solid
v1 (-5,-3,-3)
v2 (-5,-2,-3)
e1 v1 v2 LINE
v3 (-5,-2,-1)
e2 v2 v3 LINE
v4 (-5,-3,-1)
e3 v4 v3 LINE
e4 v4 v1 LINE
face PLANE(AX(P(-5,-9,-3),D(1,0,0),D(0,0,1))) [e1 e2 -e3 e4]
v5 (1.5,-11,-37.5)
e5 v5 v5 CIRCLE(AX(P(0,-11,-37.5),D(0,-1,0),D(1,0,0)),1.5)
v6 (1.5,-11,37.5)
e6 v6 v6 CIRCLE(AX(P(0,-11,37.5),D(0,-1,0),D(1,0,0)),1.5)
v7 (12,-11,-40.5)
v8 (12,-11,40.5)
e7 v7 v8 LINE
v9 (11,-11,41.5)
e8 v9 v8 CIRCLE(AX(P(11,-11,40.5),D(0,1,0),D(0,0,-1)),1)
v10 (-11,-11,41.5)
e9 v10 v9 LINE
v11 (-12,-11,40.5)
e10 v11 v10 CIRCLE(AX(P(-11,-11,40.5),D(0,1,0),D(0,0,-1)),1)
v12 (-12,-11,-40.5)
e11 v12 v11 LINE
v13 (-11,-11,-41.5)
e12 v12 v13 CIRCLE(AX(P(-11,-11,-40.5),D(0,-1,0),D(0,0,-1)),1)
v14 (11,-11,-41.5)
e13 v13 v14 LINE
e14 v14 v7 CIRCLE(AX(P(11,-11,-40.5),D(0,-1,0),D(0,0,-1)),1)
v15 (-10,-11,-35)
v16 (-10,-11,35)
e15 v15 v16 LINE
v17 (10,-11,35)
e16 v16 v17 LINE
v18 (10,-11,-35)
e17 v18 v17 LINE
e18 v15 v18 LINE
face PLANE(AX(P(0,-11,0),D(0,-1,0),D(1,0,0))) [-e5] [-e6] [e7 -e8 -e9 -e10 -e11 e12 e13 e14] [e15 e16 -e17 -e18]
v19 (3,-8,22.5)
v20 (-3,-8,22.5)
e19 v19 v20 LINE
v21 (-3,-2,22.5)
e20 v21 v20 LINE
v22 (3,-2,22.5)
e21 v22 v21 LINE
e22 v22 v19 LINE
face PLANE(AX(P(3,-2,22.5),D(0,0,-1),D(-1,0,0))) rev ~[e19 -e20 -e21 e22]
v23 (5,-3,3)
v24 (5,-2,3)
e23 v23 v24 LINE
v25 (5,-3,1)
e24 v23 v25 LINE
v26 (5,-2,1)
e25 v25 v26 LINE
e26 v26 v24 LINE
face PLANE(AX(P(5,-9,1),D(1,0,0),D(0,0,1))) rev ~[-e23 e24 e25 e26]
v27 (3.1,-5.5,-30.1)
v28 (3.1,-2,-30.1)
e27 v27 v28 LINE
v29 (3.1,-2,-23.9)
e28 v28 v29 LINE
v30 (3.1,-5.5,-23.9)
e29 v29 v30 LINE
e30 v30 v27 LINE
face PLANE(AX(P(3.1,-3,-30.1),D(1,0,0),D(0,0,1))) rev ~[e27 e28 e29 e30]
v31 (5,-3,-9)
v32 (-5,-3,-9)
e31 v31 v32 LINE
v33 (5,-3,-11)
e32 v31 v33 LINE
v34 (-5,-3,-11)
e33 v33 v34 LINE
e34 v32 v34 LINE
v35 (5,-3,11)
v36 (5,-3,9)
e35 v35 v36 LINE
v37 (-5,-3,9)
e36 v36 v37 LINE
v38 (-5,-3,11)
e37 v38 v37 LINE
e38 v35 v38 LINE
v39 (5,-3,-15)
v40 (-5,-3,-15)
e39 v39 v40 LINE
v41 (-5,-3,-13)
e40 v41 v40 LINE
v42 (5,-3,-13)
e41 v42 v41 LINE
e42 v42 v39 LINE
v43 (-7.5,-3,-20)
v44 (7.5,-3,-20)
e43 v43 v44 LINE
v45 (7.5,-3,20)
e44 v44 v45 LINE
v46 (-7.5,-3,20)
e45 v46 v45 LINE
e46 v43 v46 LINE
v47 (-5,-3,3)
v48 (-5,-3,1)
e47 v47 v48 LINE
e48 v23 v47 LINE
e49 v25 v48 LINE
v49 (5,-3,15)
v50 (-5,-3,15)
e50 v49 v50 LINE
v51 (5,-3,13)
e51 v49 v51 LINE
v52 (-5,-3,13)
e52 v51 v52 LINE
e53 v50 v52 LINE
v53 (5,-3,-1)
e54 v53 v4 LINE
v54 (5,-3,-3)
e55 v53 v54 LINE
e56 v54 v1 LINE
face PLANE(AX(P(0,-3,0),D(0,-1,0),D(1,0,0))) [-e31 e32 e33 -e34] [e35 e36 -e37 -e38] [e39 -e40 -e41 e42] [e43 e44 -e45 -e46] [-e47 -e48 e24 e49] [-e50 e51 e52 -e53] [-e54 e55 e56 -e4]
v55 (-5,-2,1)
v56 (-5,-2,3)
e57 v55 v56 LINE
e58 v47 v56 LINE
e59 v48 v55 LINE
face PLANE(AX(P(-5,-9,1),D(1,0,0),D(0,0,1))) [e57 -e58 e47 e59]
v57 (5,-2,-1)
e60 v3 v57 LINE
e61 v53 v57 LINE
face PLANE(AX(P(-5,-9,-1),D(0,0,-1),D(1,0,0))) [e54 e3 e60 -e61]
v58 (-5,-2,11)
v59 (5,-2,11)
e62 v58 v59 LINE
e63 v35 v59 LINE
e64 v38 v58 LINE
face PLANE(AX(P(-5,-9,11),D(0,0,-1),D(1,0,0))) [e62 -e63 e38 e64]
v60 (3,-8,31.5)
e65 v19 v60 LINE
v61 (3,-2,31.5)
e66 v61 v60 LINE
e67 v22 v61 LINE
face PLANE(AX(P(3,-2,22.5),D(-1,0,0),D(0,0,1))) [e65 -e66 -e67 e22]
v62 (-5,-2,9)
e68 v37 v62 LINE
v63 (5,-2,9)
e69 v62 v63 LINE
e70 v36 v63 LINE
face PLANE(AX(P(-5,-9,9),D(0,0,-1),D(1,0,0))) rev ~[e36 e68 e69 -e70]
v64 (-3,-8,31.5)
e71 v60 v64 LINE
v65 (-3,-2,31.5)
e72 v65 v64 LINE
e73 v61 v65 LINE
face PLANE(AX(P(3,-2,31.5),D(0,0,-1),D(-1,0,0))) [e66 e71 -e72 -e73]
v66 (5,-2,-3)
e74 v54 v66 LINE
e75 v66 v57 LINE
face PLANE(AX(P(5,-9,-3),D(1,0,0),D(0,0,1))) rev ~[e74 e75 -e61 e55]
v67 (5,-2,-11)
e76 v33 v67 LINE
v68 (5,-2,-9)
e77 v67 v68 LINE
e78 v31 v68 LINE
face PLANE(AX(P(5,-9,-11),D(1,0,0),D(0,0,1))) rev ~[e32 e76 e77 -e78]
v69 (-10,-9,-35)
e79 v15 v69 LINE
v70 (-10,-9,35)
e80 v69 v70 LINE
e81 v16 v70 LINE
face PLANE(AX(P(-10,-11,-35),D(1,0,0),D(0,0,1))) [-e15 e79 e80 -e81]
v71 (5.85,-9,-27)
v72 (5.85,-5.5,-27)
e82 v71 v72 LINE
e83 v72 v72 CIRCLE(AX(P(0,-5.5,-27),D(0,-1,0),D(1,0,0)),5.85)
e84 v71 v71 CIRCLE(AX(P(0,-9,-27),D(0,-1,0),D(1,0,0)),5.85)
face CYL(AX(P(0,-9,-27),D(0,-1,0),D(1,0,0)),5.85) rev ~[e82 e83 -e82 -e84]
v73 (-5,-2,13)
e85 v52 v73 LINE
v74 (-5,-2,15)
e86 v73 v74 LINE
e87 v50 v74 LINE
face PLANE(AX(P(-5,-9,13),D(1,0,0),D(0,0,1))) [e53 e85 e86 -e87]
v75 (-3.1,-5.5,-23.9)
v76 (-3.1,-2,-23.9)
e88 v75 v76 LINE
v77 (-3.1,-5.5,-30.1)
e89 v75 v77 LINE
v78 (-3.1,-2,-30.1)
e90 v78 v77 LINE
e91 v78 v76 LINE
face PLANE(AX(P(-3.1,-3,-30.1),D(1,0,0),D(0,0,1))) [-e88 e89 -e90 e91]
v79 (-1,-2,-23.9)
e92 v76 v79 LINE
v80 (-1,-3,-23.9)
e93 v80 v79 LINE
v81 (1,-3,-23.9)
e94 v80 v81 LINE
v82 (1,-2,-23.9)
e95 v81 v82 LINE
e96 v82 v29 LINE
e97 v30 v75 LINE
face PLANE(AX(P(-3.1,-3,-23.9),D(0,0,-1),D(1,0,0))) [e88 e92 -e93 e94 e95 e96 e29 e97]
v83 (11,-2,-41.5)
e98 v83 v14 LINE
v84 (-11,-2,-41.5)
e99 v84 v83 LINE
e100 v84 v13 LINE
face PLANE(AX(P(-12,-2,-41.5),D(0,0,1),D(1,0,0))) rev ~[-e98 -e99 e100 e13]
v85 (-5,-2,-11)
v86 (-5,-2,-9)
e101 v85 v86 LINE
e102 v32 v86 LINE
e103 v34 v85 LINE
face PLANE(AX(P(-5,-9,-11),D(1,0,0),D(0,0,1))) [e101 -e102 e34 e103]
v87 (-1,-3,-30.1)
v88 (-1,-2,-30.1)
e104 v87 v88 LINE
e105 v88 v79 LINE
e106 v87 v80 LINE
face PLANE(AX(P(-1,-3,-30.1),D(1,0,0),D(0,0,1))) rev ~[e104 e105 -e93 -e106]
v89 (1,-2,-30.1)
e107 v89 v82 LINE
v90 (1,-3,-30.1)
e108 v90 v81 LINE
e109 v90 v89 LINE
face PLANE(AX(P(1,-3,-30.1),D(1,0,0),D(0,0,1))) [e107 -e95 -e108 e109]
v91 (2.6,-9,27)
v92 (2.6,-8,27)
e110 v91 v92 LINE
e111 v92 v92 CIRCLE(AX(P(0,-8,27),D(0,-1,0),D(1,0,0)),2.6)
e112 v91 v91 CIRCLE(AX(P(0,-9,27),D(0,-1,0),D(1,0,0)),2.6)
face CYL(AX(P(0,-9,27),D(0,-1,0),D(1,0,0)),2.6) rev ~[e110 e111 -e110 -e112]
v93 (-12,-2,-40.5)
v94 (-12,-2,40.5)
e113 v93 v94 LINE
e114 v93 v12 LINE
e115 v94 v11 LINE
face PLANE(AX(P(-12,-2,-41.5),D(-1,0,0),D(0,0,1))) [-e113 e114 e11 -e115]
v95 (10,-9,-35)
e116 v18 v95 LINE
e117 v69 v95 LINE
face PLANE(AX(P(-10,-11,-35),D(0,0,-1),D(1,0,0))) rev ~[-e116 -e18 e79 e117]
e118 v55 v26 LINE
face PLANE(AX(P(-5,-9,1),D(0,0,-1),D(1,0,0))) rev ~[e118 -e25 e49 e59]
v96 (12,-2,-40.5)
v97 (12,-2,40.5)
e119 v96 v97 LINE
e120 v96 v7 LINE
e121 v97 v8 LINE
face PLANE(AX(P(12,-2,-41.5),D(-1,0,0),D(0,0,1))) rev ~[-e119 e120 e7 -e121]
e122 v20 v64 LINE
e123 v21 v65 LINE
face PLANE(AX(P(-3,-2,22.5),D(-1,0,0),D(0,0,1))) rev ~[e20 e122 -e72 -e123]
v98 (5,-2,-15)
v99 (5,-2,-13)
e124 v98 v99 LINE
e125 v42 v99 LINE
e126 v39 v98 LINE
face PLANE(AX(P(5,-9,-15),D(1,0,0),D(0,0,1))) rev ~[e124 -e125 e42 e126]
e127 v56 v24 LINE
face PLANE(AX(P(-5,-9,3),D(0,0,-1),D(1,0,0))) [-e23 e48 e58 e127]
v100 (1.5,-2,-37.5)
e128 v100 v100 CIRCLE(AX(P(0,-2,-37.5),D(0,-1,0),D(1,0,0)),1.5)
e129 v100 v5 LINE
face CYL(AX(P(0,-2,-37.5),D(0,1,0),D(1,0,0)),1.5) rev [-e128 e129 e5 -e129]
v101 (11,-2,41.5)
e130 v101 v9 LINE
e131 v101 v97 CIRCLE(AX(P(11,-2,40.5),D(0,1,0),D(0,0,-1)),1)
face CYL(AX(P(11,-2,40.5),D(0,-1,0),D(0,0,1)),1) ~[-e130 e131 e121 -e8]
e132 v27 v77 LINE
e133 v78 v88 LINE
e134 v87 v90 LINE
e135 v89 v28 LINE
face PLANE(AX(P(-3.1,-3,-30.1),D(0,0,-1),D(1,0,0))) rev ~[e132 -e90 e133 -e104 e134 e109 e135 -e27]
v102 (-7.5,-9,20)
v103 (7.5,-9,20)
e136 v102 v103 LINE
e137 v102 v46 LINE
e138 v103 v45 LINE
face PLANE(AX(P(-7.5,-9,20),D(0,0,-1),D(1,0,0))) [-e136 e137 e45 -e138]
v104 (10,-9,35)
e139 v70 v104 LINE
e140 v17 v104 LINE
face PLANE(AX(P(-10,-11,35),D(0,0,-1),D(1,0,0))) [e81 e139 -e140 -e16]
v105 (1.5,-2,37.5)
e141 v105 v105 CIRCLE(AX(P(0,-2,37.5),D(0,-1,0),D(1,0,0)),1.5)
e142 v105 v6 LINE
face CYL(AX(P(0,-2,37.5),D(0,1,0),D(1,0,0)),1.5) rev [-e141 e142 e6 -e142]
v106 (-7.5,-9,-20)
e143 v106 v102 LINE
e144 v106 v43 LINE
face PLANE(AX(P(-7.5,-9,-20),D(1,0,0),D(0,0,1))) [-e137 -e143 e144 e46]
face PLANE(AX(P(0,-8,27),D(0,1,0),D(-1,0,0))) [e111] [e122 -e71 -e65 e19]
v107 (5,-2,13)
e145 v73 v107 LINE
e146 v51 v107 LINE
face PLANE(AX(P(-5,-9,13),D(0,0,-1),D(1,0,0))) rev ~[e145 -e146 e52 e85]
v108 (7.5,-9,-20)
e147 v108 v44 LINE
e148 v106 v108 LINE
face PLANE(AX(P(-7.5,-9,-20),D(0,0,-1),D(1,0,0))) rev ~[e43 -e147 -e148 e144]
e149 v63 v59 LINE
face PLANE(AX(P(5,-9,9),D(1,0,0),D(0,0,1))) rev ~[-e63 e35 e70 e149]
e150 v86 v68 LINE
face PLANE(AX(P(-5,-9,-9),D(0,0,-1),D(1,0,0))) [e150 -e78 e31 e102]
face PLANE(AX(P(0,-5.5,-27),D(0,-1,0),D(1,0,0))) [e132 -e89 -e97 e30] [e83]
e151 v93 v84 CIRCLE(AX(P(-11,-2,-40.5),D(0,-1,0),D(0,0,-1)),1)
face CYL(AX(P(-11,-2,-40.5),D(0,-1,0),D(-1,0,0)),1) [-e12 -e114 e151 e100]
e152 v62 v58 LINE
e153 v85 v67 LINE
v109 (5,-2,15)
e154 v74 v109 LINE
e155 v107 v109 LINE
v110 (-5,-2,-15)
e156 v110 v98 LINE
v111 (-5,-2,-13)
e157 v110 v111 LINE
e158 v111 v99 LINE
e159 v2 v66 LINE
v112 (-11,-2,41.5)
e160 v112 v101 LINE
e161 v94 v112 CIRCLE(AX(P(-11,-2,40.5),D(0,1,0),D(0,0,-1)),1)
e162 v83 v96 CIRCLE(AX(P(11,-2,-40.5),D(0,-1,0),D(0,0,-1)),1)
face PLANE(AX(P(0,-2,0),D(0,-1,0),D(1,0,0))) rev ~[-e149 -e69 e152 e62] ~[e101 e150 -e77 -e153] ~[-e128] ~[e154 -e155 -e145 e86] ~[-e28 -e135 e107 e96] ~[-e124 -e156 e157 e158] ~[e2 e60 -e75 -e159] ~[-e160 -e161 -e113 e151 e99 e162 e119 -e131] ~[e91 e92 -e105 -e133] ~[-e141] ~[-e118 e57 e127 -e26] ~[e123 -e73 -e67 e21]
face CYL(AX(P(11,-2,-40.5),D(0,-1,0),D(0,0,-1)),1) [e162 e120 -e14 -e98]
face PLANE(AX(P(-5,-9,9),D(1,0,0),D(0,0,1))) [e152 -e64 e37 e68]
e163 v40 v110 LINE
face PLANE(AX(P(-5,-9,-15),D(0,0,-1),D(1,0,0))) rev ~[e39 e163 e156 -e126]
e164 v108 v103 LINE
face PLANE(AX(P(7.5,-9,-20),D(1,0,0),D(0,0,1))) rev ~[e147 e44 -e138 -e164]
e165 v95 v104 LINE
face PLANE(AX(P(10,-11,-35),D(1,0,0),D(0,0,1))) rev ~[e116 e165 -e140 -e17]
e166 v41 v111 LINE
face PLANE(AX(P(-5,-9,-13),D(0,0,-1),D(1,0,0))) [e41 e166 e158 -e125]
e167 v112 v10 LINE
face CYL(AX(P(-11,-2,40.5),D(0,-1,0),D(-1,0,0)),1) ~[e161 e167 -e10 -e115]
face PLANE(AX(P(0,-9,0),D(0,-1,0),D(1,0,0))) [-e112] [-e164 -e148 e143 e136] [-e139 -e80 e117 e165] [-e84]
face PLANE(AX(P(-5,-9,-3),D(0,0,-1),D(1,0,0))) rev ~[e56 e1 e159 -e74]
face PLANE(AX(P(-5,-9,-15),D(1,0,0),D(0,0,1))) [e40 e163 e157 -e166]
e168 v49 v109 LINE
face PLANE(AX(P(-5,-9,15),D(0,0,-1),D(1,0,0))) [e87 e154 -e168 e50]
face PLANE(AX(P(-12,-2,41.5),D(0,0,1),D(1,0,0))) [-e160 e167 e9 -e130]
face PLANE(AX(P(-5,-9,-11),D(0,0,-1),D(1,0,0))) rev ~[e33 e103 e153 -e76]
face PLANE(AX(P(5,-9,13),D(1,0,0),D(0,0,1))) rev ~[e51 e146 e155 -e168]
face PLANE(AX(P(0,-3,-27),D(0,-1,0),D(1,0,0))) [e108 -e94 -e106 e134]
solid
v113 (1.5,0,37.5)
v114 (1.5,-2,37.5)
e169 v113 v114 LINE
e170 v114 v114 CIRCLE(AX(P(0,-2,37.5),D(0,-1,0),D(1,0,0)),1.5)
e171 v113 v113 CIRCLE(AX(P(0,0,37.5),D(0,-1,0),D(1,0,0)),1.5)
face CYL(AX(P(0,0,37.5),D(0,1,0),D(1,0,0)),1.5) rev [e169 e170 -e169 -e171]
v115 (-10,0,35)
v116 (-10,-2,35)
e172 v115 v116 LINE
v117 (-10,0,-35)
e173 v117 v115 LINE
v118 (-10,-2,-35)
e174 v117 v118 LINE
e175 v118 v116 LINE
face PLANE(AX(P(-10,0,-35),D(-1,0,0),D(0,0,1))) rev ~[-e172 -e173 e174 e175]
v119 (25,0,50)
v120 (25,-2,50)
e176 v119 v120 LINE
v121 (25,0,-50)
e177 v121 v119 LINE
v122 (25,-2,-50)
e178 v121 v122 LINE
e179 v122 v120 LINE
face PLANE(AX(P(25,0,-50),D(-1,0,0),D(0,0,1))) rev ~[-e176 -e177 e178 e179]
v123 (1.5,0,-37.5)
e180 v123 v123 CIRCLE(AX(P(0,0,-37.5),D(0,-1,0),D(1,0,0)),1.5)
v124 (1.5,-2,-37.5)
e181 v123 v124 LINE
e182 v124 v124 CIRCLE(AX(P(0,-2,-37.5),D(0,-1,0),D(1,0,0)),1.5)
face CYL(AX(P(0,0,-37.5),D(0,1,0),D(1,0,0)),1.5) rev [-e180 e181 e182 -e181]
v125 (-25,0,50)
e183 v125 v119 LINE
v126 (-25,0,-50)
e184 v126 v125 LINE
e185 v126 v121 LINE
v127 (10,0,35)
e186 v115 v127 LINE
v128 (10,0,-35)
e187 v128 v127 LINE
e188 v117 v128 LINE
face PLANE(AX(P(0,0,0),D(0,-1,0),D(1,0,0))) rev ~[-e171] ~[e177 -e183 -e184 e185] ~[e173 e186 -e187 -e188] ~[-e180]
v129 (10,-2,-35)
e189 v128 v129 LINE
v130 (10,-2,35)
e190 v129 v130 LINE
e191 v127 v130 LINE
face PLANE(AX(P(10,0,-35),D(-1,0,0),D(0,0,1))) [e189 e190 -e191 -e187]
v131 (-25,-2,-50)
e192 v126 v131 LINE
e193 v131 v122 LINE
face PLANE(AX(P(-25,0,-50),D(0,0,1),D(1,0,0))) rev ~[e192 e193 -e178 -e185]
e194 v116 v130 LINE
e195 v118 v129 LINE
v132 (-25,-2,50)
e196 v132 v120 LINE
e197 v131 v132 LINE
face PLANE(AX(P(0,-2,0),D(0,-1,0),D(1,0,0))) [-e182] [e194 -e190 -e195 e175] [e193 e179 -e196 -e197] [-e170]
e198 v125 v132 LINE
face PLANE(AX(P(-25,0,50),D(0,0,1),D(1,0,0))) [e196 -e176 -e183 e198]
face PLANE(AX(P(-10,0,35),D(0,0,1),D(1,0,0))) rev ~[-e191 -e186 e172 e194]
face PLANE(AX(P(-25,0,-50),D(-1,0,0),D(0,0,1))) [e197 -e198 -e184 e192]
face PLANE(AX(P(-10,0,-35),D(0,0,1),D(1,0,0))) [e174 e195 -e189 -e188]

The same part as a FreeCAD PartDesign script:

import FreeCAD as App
import Part
import Sketcher


def edges_at(feature, points):
    """Names of the edges that pass closest to the given points."""
    edges = feature.Shape.Edges
    near = lambda p: min(range(len(edges)), key=lambda i: edges[i].distToShape(Part.Vertex(*p))[0])
    return sorted({f"Edge{near(p) + 1}" for p in points})

doc = App.newDocument("Part")
body = doc.addObject("PartDesign::Body", "Body")

sketch1 = body.newObject("Sketcher::SketchObject", "Sketch")
sketch1.AttachmentSupport = (doc.getObject("XZ_Plane"), [""])
sketch1.MapMode = "FlatFace"
sketch1.addGeometry(Part.LineSegment(App.Vector(-25, 50, 0), App.Vector(-25, -50, 0)), False)
sketch1.addGeometry(Part.LineSegment(App.Vector(-25, -50, 0), App.Vector(25, -50, 0)), False)
sketch1.addGeometry(Part.LineSegment(App.Vector(25, -50, 0), App.Vector(25, 50, 0)), False)
sketch1.addGeometry(Part.LineSegment(App.Vector(25, 50, 0), App.Vector(-25, 50, 0)), False)
sketch1.addGeometry(Part.Circle(App.Vector(0, -37.5, 0), App.Vector(0, 0, 1), 1.5), False)
sketch1.addGeometry(Part.LineSegment(App.Vector(10, -35, 0), App.Vector(-10, -35, 0)), False)
sketch1.addGeometry(Part.LineSegment(App.Vector(-10, -35, 0), App.Vector(-10, 35, 0)), False)
sketch1.addGeometry(Part.LineSegment(App.Vector(-10, 35, 0), App.Vector(10, 35, 0)), False)
sketch1.addGeometry(Part.LineSegment(App.Vector(10, 35, 0), App.Vector(10, -35, 0)), False)
sketch1.addGeometry(Part.Circle(App.Vector(0, 37.5, 0), App.Vector(0, 0, 1), 1.5), False)
sketch1.addConstraint(Sketcher.Constraint("Coincident", 0, 2, 1, 1))
sketch1.addConstraint(Sketcher.Constraint("Coincident", 1, 2, 2, 1))
sketch1.addConstraint(Sketcher.Constraint("Coincident", 2, 2, 3, 1))
sketch1.addConstraint(Sketcher.Constraint("Coincident", 3, 2, 0, 1))
sketch1.addConstraint(Sketcher.Constraint("Coincident", 5, 2, 6, 1))
sketch1.addConstraint(Sketcher.Constraint("Coincident", 6, 2, 7, 1))
sketch1.addConstraint(Sketcher.Constraint("Coincident", 7, 2, 8, 1))
sketch1.addConstraint(Sketcher.Constraint("Coincident", 8, 2, 5, 1))
sketch1.addConstraint(Sketcher.Constraint("Vertical", 0))
sketch1.addConstraint(Sketcher.Constraint("Horizontal", 1))
sketch1.addConstraint(Sketcher.Constraint("Vertical", 2))
sketch1.addConstraint(Sketcher.Constraint("Horizontal", 3))
sketch1.addConstraint(Sketcher.Constraint("Horizontal", 5))
sketch1.addConstraint(Sketcher.Constraint("Vertical", 6))
sketch1.addConstraint(Sketcher.Constraint("Horizontal", 7))
sketch1.addConstraint(Sketcher.Constraint("Vertical", 8))
sketch1.addConstraint(Sketcher.Constraint("Equal", 4, 9))
sketch1.addConstraint(Sketcher.Constraint("Symmetric", 4, 3, 9, 3, -1, 1))
sketch1.addConstraint(Sketcher.Constraint("Symmetric", 0, 2, 2, 2, -1, 1))
sketch1.addConstraint(Sketcher.Constraint("Symmetric", 5, 2, 7, 2, -1, 1))
sketch1.addConstraint(Sketcher.Constraint("PointOnObject", 4, 3, -2))
sketch1.addConstraint(Sketcher.Constraint("Diameter", 4, 3.0))
sketch1.addConstraint(Sketcher.Constraint("DistanceX", 1, 1, 1, 2, 50.0))
sketch1.addConstraint(Sketcher.Constraint("DistanceX", 5, 2, 5, 1, 20.0))
sketch1.addConstraint(Sketcher.Constraint("DistanceY", 0, 2, 0, 1, 100.0))
sketch1.addConstraint(Sketcher.Constraint("DistanceY", 6, 1, 6, 2, 70.0))
sketch1.addConstraint(Sketcher.Constraint("DistanceY", 4, 3, 9, 3, 75.0))
pad1 = body.newObject("PartDesign::Pad", "Pad")
pad1.Profile = sketch1
pad1.Length = 2
body2 = doc.addObject("PartDesign::Body", "Body001")

sketch2 = body2.newObject("Sketcher::SketchObject", "Sketch001")
sketch2.AttachmentSupport = (doc.getObject("XZ_Plane001"), [""])
sketch2.MapMode = "FlatFace"
sketch2.AttachmentOffset = App.Placement(App.Vector(0, 0, 2), App.Rotation())
sketch2.addGeometry(Part.LineSegment(App.Vector(-12, 41.5, 0), App.Vector(-12, -41.5, 0)), False)
sketch2.addGeometry(Part.LineSegment(App.Vector(-12, -41.5, 0), App.Vector(12, -41.5, 0)), False)
sketch2.addGeometry(Part.LineSegment(App.Vector(12, -41.5, 0), App.Vector(12, 41.5, 0)), False)
sketch2.addGeometry(Part.LineSegment(App.Vector(12, 41.5, 0), App.Vector(-12, 41.5, 0)), False)
sketch2.addGeometry(Part.Circle(App.Vector(0, -37.5, 0), App.Vector(0, 0, 1), 1.5), False)
sketch2.addGeometry(Part.Circle(App.Vector(0, 37.5, 0), App.Vector(0, 0, 1), 1.5), False)
sketch2.addConstraint(Sketcher.Constraint("Coincident", 0, 2, 1, 1))
sketch2.addConstraint(Sketcher.Constraint("Coincident", 1, 2, 2, 1))
sketch2.addConstraint(Sketcher.Constraint("Coincident", 2, 2, 3, 1))
sketch2.addConstraint(Sketcher.Constraint("Coincident", 3, 2, 0, 1))
sketch2.addConstraint(Sketcher.Constraint("Vertical", 0))
sketch2.addConstraint(Sketcher.Constraint("Horizontal", 1))
sketch2.addConstraint(Sketcher.Constraint("Vertical", 2))
sketch2.addConstraint(Sketcher.Constraint("Horizontal", 3))
sketch2.addConstraint(Sketcher.Constraint("Equal", 4, 5))
sketch2.addConstraint(Sketcher.Constraint("Symmetric", 4, 3, 5, 3, -1, 1))
sketch2.addConstraint(Sketcher.Constraint("Symmetric", 0, 2, 2, 2, -1, 1))
sketch2.addConstraint(Sketcher.Constraint("PointOnObject", 4, 3, -2))
sketch2.addConstraint(Sketcher.Constraint("Diameter", 4, 3.0))
sketch2.addConstraint(Sketcher.Constraint("DistanceX", 1, 1, 1, 2, 24.0))
sketch2.addConstraint(Sketcher.Constraint("DistanceY", 0, 2, 0, 1, 83.0))
sketch2.addConstraint(Sketcher.Constraint("DistanceY", 4, 3, 5, 3, 75.0))
pad2 = body2.newObject("PartDesign::Pad", "Pad001")
pad2.Profile = sketch2
pad2.Length = 9

sketch3 = body2.newObject("Sketcher::SketchObject", "Sketch002")
sketch3.AttachmentSupport = (doc.getObject("XZ_Plane001"), [""])
sketch3.MapMode = "FlatFace"
sketch3.AttachmentOffset = App.Placement(App.Vector(0, 0, 11), App.Rotation())
sketch3.addGeometry(Part.LineSegment(App.Vector(-10, 35, 0), App.Vector(-10, -35, 0)), False)
sketch3.addGeometry(Part.LineSegment(App.Vector(-10, -35, 0), App.Vector(10, -35, 0)), False)
sketch3.addGeometry(Part.LineSegment(App.Vector(10, -35, 0), App.Vector(10, 35, 0)), False)
sketch3.addGeometry(Part.LineSegment(App.Vector(10, 35, 0), App.Vector(-10, 35, 0)), False)
sketch3.addConstraint(Sketcher.Constraint("Coincident", 0, 2, 1, 1))
sketch3.addConstraint(Sketcher.Constraint("Coincident", 1, 2, 2, 1))
sketch3.addConstraint(Sketcher.Constraint("Coincident", 2, 2, 3, 1))
sketch3.addConstraint(Sketcher.Constraint("Coincident", 3, 2, 0, 1))
sketch3.addConstraint(Sketcher.Constraint("Vertical", 0))
sketch3.addConstraint(Sketcher.Constraint("Horizontal", 1))
sketch3.addConstraint(Sketcher.Constraint("Vertical", 2))
sketch3.addConstraint(Sketcher.Constraint("Horizontal", 3))
sketch3.addConstraint(Sketcher.Constraint("Symmetric", 0, 2, 2, 2, -1, 1))
sketch3.addConstraint(Sketcher.Constraint("DistanceX", 1, 1, 1, 2, 20.0))
sketch3.addConstraint(Sketcher.Constraint("DistanceY", 0, 2, 0, 1, 70.0))
pocket1 = body2.newObject("PartDesign::Pocket", "Pocket")
pocket1.Profile = sketch3
pocket1.Length = 14

sketch4 = body2.newObject("Sketcher::SketchObject", "Sketch003")
sketch4.AttachmentSupport = (doc.getObject("XZ_Plane001"), [""])
sketch4.MapMode = "FlatFace"
sketch4.AttachmentOffset = App.Placement(App.Vector(0, 0, 2), App.Rotation())
sketch4.addGeometry(Part.LineSegment(App.Vector(-10, 35, 0), App.Vector(-10, -35, 0)), False)
sketch4.addGeometry(Part.LineSegment(App.Vector(-10, -35, 0), App.Vector(10, -35, 0)), False)
sketch4.addGeometry(Part.LineSegment(App.Vector(10, -35, 0), App.Vector(10, 35, 0)), False)
sketch4.addGeometry(Part.LineSegment(App.Vector(10, 35, 0), App.Vector(-10, 35, 0)), False)
sketch4.addConstraint(Sketcher.Constraint("Coincident", 0, 2, 1, 1))
sketch4.addConstraint(Sketcher.Constraint("Coincident", 1, 2, 2, 1))
sketch4.addConstraint(Sketcher.Constraint("Coincident", 2, 2, 3, 1))
sketch4.addConstraint(Sketcher.Constraint("Coincident", 3, 2, 0, 1))
sketch4.addConstraint(Sketcher.Constraint("Vertical", 0))
sketch4.addConstraint(Sketcher.Constraint("Horizontal", 1))
sketch4.addConstraint(Sketcher.Constraint("Vertical", 2))
sketch4.addConstraint(Sketcher.Constraint("Horizontal", 3))
sketch4.addConstraint(Sketcher.Constraint("Symmetric", 0, 2, 2, 2, -1, 1))
sketch4.addConstraint(Sketcher.Constraint("DistanceX", 1, 1, 1, 2, 20.0))
sketch4.addConstraint(Sketcher.Constraint("DistanceY", 0, 2, 0, 1, 70.0))
pad3 = body2.newObject("PartDesign::Pad", "Pad002")
pad3.Profile = sketch4
pad3.Length = 7

sketch5 = body2.newObject("Sketcher::SketchObject", "Sketch004")
sketch5.AttachmentSupport = (doc.getObject("XZ_Plane001"), [""])
sketch5.MapMode = "FlatFace"
sketch5.AttachmentOffset = App.Placement(App.Vector(0, 0, 9), App.Rotation())
sketch5.addGeometry(Part.Circle(App.Vector(0, 27, 0), App.Vector(0, 0, 1), 2.6), False)
sketch5.addConstraint(Sketcher.Constraint("PointOnObject", 0, 3, -2))
sketch5.addConstraint(Sketcher.Constraint("Diameter", 0, 5.2))
sketch5.addConstraint(Sketcher.Constraint("DistanceY", -1, 1, 0, 3, 27.0))
pocket2 = body2.newObject("PartDesign::Pocket", "Pocket001")
pocket2.Profile = sketch5
pocket2.Length = 5

sketch6 = body2.newObject("Sketcher::SketchObject", "Sketch005")
sketch6.AttachmentSupport = (doc.getObject("XZ_Plane001"), [""])
sketch6.MapMode = "FlatFace"
sketch6.AttachmentOffset = App.Placement(App.Vector(0, 0, 2), App.Rotation())
sketch6.addGeometry(Part.LineSegment(App.Vector(3, 31.5, 0), App.Vector(3, 22.5, 0)), False)
sketch6.addGeometry(Part.LineSegment(App.Vector(3, 22.5, 0), App.Vector(-3, 22.5, 0)), False)
sketch6.addGeometry(Part.LineSegment(App.Vector(-3, 22.5, 0), App.Vector(-3, 31.5, 0)), False)
sketch6.addGeometry(Part.LineSegment(App.Vector(-3, 31.5, 0), App.Vector(3, 31.5, 0)), False)
sketch6.addConstraint(Sketcher.Constraint("Coincident", 0, 2, 1, 1))
sketch6.addConstraint(Sketcher.Constraint("Coincident", 1, 2, 2, 1))
sketch6.addConstraint(Sketcher.Constraint("Coincident", 2, 2, 3, 1))
sketch6.addConstraint(Sketcher.Constraint("Coincident", 3, 2, 0, 1))
sketch6.addConstraint(Sketcher.Constraint("Vertical", 0))
sketch6.addConstraint(Sketcher.Constraint("Horizontal", 1))
sketch6.addConstraint(Sketcher.Constraint("Vertical", 2))
sketch6.addConstraint(Sketcher.Constraint("Horizontal", 3))
sketch6.addConstraint(Sketcher.Constraint("DistanceX", 1, 2, 1, 1, 6.0))
sketch6.addConstraint(Sketcher.Constraint("DistanceY", 0, 2, 0, 1, 9.0))
sketch6.addConstraint(Sketcher.Constraint("DistanceX", -1, 1, 0, 2, 3.0))
sketch6.addConstraint(Sketcher.Constraint("DistanceY", -1, 1, 0, 2, 22.5))
pocket3 = body2.newObject("PartDesign::Pocket", "Pocket002")
pocket3.Profile = sketch6
pocket3.Length = 6
pocket3.Reversed = True

sketch7 = body2.newObject("Sketcher::SketchObject", "Sketch006")
sketch7.AttachmentSupport = (doc.getObject("XZ_Plane001"), [""])
sketch7.MapMode = "FlatFace"
sketch7.AttachmentOffset = App.Placement(App.Vector(0, 0, 9), App.Rotation())
sketch7.addGeometry(Part.LineSegment(App.Vector(-5, 15, 0), App.Vector(-5, 13, 0)), False)
sketch7.addGeometry(Part.LineSegment(App.Vector(-5, 13, 0), App.Vector(5, 13, 0)), False)
sketch7.addGeometry(Part.LineSegment(App.Vector(5, 13, 0), App.Vector(5, 15, 0)), False)
sketch7.addGeometry(Part.LineSegment(App.Vector(5, 15, 0), App.Vector(-5, 15, 0)), False)
sketch7.addGeometry(Part.LineSegment(App.Vector(-5, 11, 0), App.Vector(-5, 9, 0)), False)
sketch7.addGeometry(Part.LineSegment(App.Vector(-5, 9, 0), App.Vector(5, 9, 0)), False)
sketch7.addGeometry(Part.LineSegment(App.Vector(5, 9, 0), App.Vector(5, 11, 0)), False)
sketch7.addGeometry(Part.LineSegment(App.Vector(5, 11, 0), App.Vector(-5, 11, 0)), False)
sketch7.addGeometry(Part.LineSegment(App.Vector(-5, 3, 0), App.Vector(-5, 1, 0)), False)
sketch7.addGeometry(Part.LineSegment(App.Vector(-5, 1, 0), App.Vector(5, 1, 0)), False)
sketch7.addGeometry(Part.LineSegment(App.Vector(5, 1, 0), App.Vector(5, 3, 0)), False)
sketch7.addGeometry(Part.LineSegment(App.Vector(5, 3, 0), App.Vector(-5, 3, 0)), False)
sketch7.addGeometry(Part.LineSegment(App.Vector(-5, -1, 0), App.Vector(-5, -3, 0)), False)
sketch7.addGeometry(Part.LineSegment(App.Vector(-5, -3, 0), App.Vector(5, -3, 0)), False)
sketch7.addGeometry(Part.LineSegment(App.Vector(5, -3, 0), App.Vector(5, -1, 0)), False)
sketch7.addGeometry(Part.LineSegment(App.Vector(5, -1, 0), App.Vector(-5, -1, 0)), False)
sketch7.addGeometry(Part.LineSegment(App.Vector(-5, -9, 0), App.Vector(-5, -11, 0)), False)
sketch7.addGeometry(Part.LineSegment(App.Vector(-5, -11, 0), App.Vector(5, -11, 0)), False)
sketch7.addGeometry(Part.LineSegment(App.Vector(5, -11, 0), App.Vector(5, -9, 0)), False)
sketch7.addGeometry(Part.LineSegment(App.Vector(5, -9, 0), App.Vector(-5, -9, 0)), False)
sketch7.addGeometry(Part.LineSegment(App.Vector(-5, -13, 0), App.Vector(-5, -15, 0)), False)
sketch7.addGeometry(Part.LineSegment(App.Vector(-5, -15, 0), App.Vector(5, -15, 0)), False)
sketch7.addGeometry(Part.LineSegment(App.Vector(5, -15, 0), App.Vector(5, -13, 0)), False)
sketch7.addGeometry(Part.LineSegment(App.Vector(5, -13, 0), App.Vector(-5, -13, 0)), False)
sketch7.addConstraint(Sketcher.Constraint("Coincident", 0, 2, 1, 1))
sketch7.addConstraint(Sketcher.Constraint("Coincident", 1, 2, 2, 1))
sketch7.addConstraint(Sketcher.Constraint("Coincident", 2, 2, 3, 1))
sketch7.addConstraint(Sketcher.Constraint("Coincident", 3, 2, 0, 1))
sketch7.addConstraint(Sketcher.Constraint("Coincident", 4, 2, 5, 1))
sketch7.addConstraint(Sketcher.Constraint("Coincident", 5, 2, 6, 1))
sketch7.addConstraint(Sketcher.Constraint("Coincident", 6, 2, 7, 1))
sketch7.addConstraint(Sketcher.Constraint("Coincident", 7, 2, 4, 1))
sketch7.addConstraint(Sketcher.Constraint("Coincident", 8, 2, 9, 1))
sketch7.addConstraint(Sketcher.Constraint("Coincident", 9, 2, 10, 1))
sketch7.addConstraint(Sketcher.Constraint("Coincident", 10, 2, 11, 1))
sketch7.addConstraint(Sketcher.Constraint("Coincident", 11, 2, 8, 1))
sketch7.addConstraint(Sketcher.Constraint("Coincident", 12, 2, 13, 1))
sketch7.addConstraint(Sketcher.Constraint("Coincident", 13, 2, 14, 1))
sketch7.addConstraint(Sketcher.Constraint("Coincident", 14, 2, 15, 1))
sketch7.addConstraint(Sketcher.Constraint("Coincident", 15, 2, 12, 1))
sketch7.addConstraint(Sketcher.Constraint("Coincident", 16, 2, 17, 1))
sketch7.addConstraint(Sketcher.Constraint("Coincident", 17, 2, 18, 1))
sketch7.addConstraint(Sketcher.Constraint("Coincident", 18, 2, 19, 1))
sketch7.addConstraint(Sketcher.Constraint("Coincident", 19, 2, 16, 1))
sketch7.addConstraint(Sketcher.Constraint("Coincident", 20, 2, 21, 1))
sketch7.addConstraint(Sketcher.Constraint("Coincident", 21, 2, 22, 1))
sketch7.addConstraint(Sketcher.Constraint("Coincident", 22, 2, 23, 1))
sketch7.addConstraint(Sketcher.Constraint("Coincident", 23, 2, 20, 1))
sketch7.addConstraint(Sketcher.Constraint("Vertical", 0))
sketch7.addConstraint(Sketcher.Constraint("Horizontal", 1))
sketch7.addConstraint(Sketcher.Constraint("Vertical", 2))
sketch7.addConstraint(Sketcher.Constraint("Horizontal", 3))
sketch7.addConstraint(Sketcher.Constraint("Vertical", 4))
sketch7.addConstraint(Sketcher.Constraint("Horizontal", 5))
sketch7.addConstraint(Sketcher.Constraint("Vertical", 6))
sketch7.addConstraint(Sketcher.Constraint("Horizontal", 7))
sketch7.addConstraint(Sketcher.Constraint("Vertical", 8))
sketch7.addConstraint(Sketcher.Constraint("Horizontal", 9))
sketch7.addConstraint(Sketcher.Constraint("Vertical", 10))
sketch7.addConstraint(Sketcher.Constraint("Horizontal", 11))
sketch7.addConstraint(Sketcher.Constraint("Vertical", 12))
sketch7.addConstraint(Sketcher.Constraint("Horizontal", 13))
sketch7.addConstraint(Sketcher.Constraint("Vertical", 14))
sketch7.addConstraint(Sketcher.Constraint("Horizontal", 15))
sketch7.addConstraint(Sketcher.Constraint("Vertical", 16))
sketch7.addConstraint(Sketcher.Constraint("Horizontal", 17))
sketch7.addConstraint(Sketcher.Constraint("Vertical", 18))
sketch7.addConstraint(Sketcher.Constraint("Horizontal", 19))
sketch7.addConstraint(Sketcher.Constraint("Vertical", 20))
sketch7.addConstraint(Sketcher.Constraint("Horizontal", 21))
sketch7.addConstraint(Sketcher.Constraint("Vertical", 22))
sketch7.addConstraint(Sketcher.Constraint("Horizontal", 23))
sketch7.addConstraint(Sketcher.Constraint("Symmetric", 10, 2, 12, 2, -1, 1))
sketch7.addConstraint(Sketcher.Constraint("Symmetric", 8, 2, 14, 2, -1, 1))
sketch7.addConstraint(Sketcher.Constraint("Symmetric", 6, 2, 16, 2, -1, 1))
sketch7.addConstraint(Sketcher.Constraint("Symmetric", 4, 2, 18, 2, -1, 1))
sketch7.addConstraint(Sketcher.Constraint("Symmetric", 2, 2, 20, 2, -1, 1))
sketch7.addConstraint(Sketcher.Constraint("Symmetric", 0, 2, 22, 2, -1, 1))
sketch7.addConstraint(Sketcher.Constraint("Vertical", 3, 2, 4, 2))
sketch7.addConstraint(Sketcher.Constraint("Vertical", 2, 2, 5, 2))
sketch7.addConstraint(Sketcher.Constraint("Vertical", 7, 2, 8, 2))
sketch7.addConstraint(Sketcher.Constraint("Vertical", 6, 2, 9, 2))
sketch7.addConstraint(Sketcher.Constraint("Vertical", 11, 2, 12, 2))
sketch7.addConstraint(Sketcher.Constraint("Equal", 2, 4))
sketch7.addConstraint(Sketcher.Constraint("Equal", 6, 8))
sketch7.addConstraint(Sketcher.Constraint("DistanceX", 1, 1, 1, 2, 10.0))
sketch7.addConstraint(Sketcher.Constraint("DistanceY", 0, 2, 0, 1, 2.0))
sketch7.addConstraint(Sketcher.Constraint("DistanceY", -1, 1, 0, 2, 13.0))
sketch7.addConstraint(Sketcher.Constraint("DistanceY", -1, 1, 4, 2, 9.0))
sketch7.addConstraint(Sketcher.Constraint("DistanceY", -1, 1, 8, 2, 1.0))
pocket4 = body2.newObject("PartDesign::Pocket", "Pocket003")
pocket4.Profile = sketch7
pocket4.Length = 10

sketch8 = body2.newObject("Sketcher::SketchObject", "Sketch007")
sketch8.AttachmentSupport = (doc.getObject("XZ_Plane001"), [""])
sketch8.MapMode = "FlatFace"
sketch8.AttachmentOffset = App.Placement(App.Vector(0, 0, 9), App.Rotation())
sketch8.addGeometry(Part.LineSegment(App.Vector(-7.5, 20, 0), App.Vector(-7.5, -20, 0)), False)
sketch8.addGeometry(Part.LineSegment(App.Vector(-7.5, -20, 0), App.Vector(7.5, -20, 0)), False)
sketch8.addGeometry(Part.LineSegment(App.Vector(7.5, -20, 0), App.Vector(7.5, 20, 0)), False)
sketch8.addGeometry(Part.LineSegment(App.Vector(7.5, 20, 0), App.Vector(-7.5, 20, 0)), False)
sketch8.addConstraint(Sketcher.Constraint("Coincident", 0, 2, 1, 1))
sketch8.addConstraint(Sketcher.Constraint("Coincident", 1, 2, 2, 1))
sketch8.addConstraint(Sketcher.Constraint("Coincident", 2, 2, 3, 1))
sketch8.addConstraint(Sketcher.Constraint("Coincident", 3, 2, 0, 1))
sketch8.addConstraint(Sketcher.Constraint("Vertical", 0))
sketch8.addConstraint(Sketcher.Constraint("Horizontal", 1))
sketch8.addConstraint(Sketcher.Constraint("Vertical", 2))
sketch8.addConstraint(Sketcher.Constraint("Horizontal", 3))
sketch8.addConstraint(Sketcher.Constraint("Symmetric", 0, 2, 2, 2, -1, 1))
sketch8.addConstraint(Sketcher.Constraint("DistanceX", 1, 1, 1, 2, 15.0))
sketch8.addConstraint(Sketcher.Constraint("DistanceY", 0, 2, 0, 1, 40.0))
pocket5 = body2.newObject("PartDesign::Pocket", "Pocket004")
pocket5.Profile = sketch8
pocket5.Length = 6

sketch9 = body2.newObject("Sketcher::SketchObject", "Sketch008")
sketch9.AttachmentSupport = (doc.getObject("XZ_Plane001"), [""])
sketch9.MapMode = "FlatFace"
sketch9.AttachmentOffset = App.Placement(App.Vector(0, 0, 9), App.Rotation())
sketch9.addGeometry(Part.LineSegment(App.Vector(-3.1, -23.9, 0), App.Vector(-3.1, -30.1, 0)), False)
sketch9.addGeometry(Part.LineSegment(App.Vector(-3.1, -30.1, 0), App.Vector(3.1, -30.1, 0)), False)
sketch9.addGeometry(Part.LineSegment(App.Vector(3.1, -30.1, 0), App.Vector(3.1, -23.9, 0)), False)
sketch9.addGeometry(Part.LineSegment(App.Vector(3.1, -23.9, 0), App.Vector(-3.1, -23.9, 0)), False)
sketch9.addConstraint(Sketcher.Constraint("Coincident", 0, 2, 1, 1))
sketch9.addConstraint(Sketcher.Constraint("Coincident", 1, 2, 2, 1))
sketch9.addConstraint(Sketcher.Constraint("Coincident", 2, 2, 3, 1))
sketch9.addConstraint(Sketcher.Constraint("Coincident", 3, 2, 0, 1))
sketch9.addConstraint(Sketcher.Constraint("Vertical", 0))
sketch9.addConstraint(Sketcher.Constraint("Horizontal", 1))
sketch9.addConstraint(Sketcher.Constraint("Vertical", 2))
sketch9.addConstraint(Sketcher.Constraint("Horizontal", 3))
sketch9.addConstraint(Sketcher.Constraint("Equal", 3, 0))
sketch9.addConstraint(Sketcher.Constraint("DistanceX", 1, 1, 1, 2, 6.2))
sketch9.addConstraint(Sketcher.Constraint("DistanceX", 0, 2, -1, 1, 3.1))
sketch9.addConstraint(Sketcher.Constraint("DistanceY", 0, 2, -1, 1, 30.1))
pocket6 = body2.newObject("PartDesign::Pocket", "Pocket005")
pocket6.Profile = sketch9
pocket6.Length = 6

sketch10 = body2.newObject("Sketcher::SketchObject", "Sketch009")
sketch10.AttachmentSupport = (doc.getObject("XZ_Plane001"), [""])
sketch10.MapMode = "FlatFace"
sketch10.AttachmentOffset = App.Placement(App.Vector(0, 0, 3), App.Rotation())
sketch10.addGeometry(Part.LineSegment(App.Vector(-3.1, -23.9, 0), App.Vector(-3.1, -30.1, 0)), False)
sketch10.addGeometry(Part.LineSegment(App.Vector(-3.1, -30.1, 0), App.Vector(-1, -30.1, 0)), False)
sketch10.addGeometry(Part.LineSegment(App.Vector(-1, -30.1, 0), App.Vector(-1, -23.9, 0)), False)
sketch10.addGeometry(Part.LineSegment(App.Vector(-1, -23.9, 0), App.Vector(-3.1, -23.9, 0)), False)
sketch10.addGeometry(Part.LineSegment(App.Vector(1, -23.9, 0), App.Vector(1, -30.1, 0)), False)
sketch10.addGeometry(Part.LineSegment(App.Vector(1, -30.1, 0), App.Vector(3.1, -30.1, 0)), False)
sketch10.addGeometry(Part.LineSegment(App.Vector(3.1, -30.1, 0), App.Vector(3.1, -23.9, 0)), False)
sketch10.addGeometry(Part.LineSegment(App.Vector(3.1, -23.9, 0), App.Vector(1, -23.9, 0)), False)
sketch10.addConstraint(Sketcher.Constraint("Coincident", 0, 2, 1, 1))
sketch10.addConstraint(Sketcher.Constraint("Coincident", 1, 2, 2, 1))
sketch10.addConstraint(Sketcher.Constraint("Coincident", 2, 2, 3, 1))
sketch10.addConstraint(Sketcher.Constraint("Coincident", 3, 2, 0, 1))
sketch10.addConstraint(Sketcher.Constraint("Coincident", 4, 2, 5, 1))
sketch10.addConstraint(Sketcher.Constraint("Coincident", 5, 2, 6, 1))
sketch10.addConstraint(Sketcher.Constraint("Coincident", 6, 2, 7, 1))
sketch10.addConstraint(Sketcher.Constraint("Coincident", 7, 2, 4, 1))
sketch10.addConstraint(Sketcher.Constraint("Vertical", 0))
sketch10.addConstraint(Sketcher.Constraint("Horizontal", 1))
sketch10.addConstraint(Sketcher.Constraint("Vertical", 2))
sketch10.addConstraint(Sketcher.Constraint("Horizontal", 3))
sketch10.addConstraint(Sketcher.Constraint("Vertical", 4))
sketch10.addConstraint(Sketcher.Constraint("Horizontal", 5))
sketch10.addConstraint(Sketcher.Constraint("Vertical", 6))
sketch10.addConstraint(Sketcher.Constraint("Horizontal", 7))
sketch10.addConstraint(Sketcher.Constraint("Symmetric", 1, 2, 4, 2, -2))
sketch10.addConstraint(Sketcher.Constraint("Symmetric", 3, 2, 6, 2, -2))
sketch10.addConstraint(Sketcher.Constraint("DistanceX", 1, 1, 1, 2, 2.1))
sketch10.addConstraint(Sketcher.Constraint("DistanceY", 0, 2, 0, 1, 6.2))
sketch10.addConstraint(Sketcher.Constraint("DistanceX", 1, 2, -1, 1, 1.0))
sketch10.addConstraint(Sketcher.Constraint("DistanceY", 0, 2, -1, 1, 30.1))
pocket7 = body2.newObject("PartDesign::Pocket", "Pocket006")
pocket7.Profile = sketch10
pocket7.Length = 1

sketch11 = body2.newObject("Sketcher::SketchObject", "Sketch010")
sketch11.AttachmentSupport = (doc.getObject("XZ_Plane001"), [""])
sketch11.MapMode = "FlatFace"
sketch11.AttachmentOffset = App.Placement(App.Vector(0, 0, 9), App.Rotation())
sketch11.addGeometry(Part.Circle(App.Vector(0, -27, 0), App.Vector(0, 0, 1), 5.85), False)
sketch11.addConstraint(Sketcher.Constraint("PointOnObject", 0, 3, -2))
sketch11.addConstraint(Sketcher.Constraint("Diameter", 0, 11.7))
sketch11.addConstraint(Sketcher.Constraint("DistanceY", 0, 3, -1, 1, 27.0))
pocket8 = body2.newObject("PartDesign::Pocket", "Pocket007")
pocket8.Profile = sketch11
pocket8.Length = 3.5
doc.recompute()

fillet = body2.newObject("PartDesign::Fillet", "Fillet")
fillet.Base = (pocket8, edges_at(pocket8, [
    (-12, -6.5, -41.5),
    (12, -6.5, -41.5),
    (-12, -6.5, 41.5),
    (12, -6.5, 41.5),
]))
fillet.Radius = 1

doc.recompute()
